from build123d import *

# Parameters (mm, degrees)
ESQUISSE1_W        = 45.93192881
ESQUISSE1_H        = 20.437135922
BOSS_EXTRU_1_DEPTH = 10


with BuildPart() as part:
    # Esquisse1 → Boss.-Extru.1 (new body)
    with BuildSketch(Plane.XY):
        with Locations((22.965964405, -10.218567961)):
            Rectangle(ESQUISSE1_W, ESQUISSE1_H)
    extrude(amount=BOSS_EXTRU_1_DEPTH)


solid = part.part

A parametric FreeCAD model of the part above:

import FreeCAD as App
import Part
import Sketcher
from FreeCAD import Vector


def add_polygon(sketch, points):
    """Adds a closed chain of lines whose ends are joined by coincident constraints."""
    first, n = sketch.GeometryCount, len(points)
    for a, b in zip(points, points[1:] + points[:1]):
        sketch.addGeometry(Part.LineSegment(App.Vector(*a, 0), App.Vector(*b, 0)), False)
    for i in range(n):
        sketch.addConstraint(Sketcher.Constraint("Coincident", first + i, 2, first + (i + 1) % n, 1))

doc = App.newDocument("Part")
body = doc.addObject("PartDesign::Body", "Body")

# Sketch on XY plane
sketch1 = body.newObject("Sketcher::SketchObject", "Sketch")
sketch1.AttachmentSupport = (doc.getObject("XY_Plane"), [""])
sketch1.MapMode = "FlatFace"
add_polygon(sketch1, [(0, 0), (0, -20.437136), (45.931929, -20.437136), (45.931929, 0)])  # lines 0-3
sketch1.addConstraint(Sketcher.Constraint("Vertical", 0))
sketch1.addConstraint(Sketcher.Constraint("Horizontal", 1))
sketch1.addConstraint(Sketcher.Constraint("Vertical", 2))
sketch1.addConstraint(Sketcher.Constraint("Horizontal", 3))
sketch1.addConstraint(Sketcher.Constraint("Coincident", 3, 2, -1, 1))
sketch1.addConstraint(Sketcher.Constraint("DistanceX", 1, 1, 1, 2, 45.931929))
sketch1.addConstraint(Sketcher.Constraint("DistanceY", 0, 2, 0, 1, 20.437136))
pad1 = body.newObject("PartDesign::Pad", "Pad")
pad1.Profile = sketch1
pad1.Length = 10

doc.recompute()
